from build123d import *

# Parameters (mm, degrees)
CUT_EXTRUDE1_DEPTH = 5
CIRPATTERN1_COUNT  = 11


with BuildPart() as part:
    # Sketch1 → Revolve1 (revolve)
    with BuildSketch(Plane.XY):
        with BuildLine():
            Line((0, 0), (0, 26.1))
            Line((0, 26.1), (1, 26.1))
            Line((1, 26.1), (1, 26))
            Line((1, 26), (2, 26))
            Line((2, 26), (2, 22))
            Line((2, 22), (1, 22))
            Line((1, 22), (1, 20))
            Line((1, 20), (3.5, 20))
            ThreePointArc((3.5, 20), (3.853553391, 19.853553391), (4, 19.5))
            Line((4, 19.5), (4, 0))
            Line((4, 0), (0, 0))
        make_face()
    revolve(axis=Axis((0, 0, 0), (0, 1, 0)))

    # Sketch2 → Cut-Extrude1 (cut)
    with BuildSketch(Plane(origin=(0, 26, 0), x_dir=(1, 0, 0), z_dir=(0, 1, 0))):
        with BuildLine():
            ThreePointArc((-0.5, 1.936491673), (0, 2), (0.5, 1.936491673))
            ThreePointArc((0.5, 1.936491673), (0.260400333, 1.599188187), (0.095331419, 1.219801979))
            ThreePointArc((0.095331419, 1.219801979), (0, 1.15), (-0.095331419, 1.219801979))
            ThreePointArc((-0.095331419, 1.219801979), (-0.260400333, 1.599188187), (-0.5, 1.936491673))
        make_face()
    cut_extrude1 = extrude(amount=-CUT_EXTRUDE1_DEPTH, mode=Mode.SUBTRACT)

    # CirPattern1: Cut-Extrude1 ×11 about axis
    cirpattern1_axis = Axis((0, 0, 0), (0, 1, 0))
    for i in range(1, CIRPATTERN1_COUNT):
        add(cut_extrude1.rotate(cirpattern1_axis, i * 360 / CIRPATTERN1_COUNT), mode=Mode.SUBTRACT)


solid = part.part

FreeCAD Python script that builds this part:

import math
import FreeCAD as App
import Part
import Sketcher
Q = App.Units.Quantity

doc = App.newDocument("Part")
body = doc.addObject("PartDesign::Body", "Body")

# Sketch on XY plane
sketch1 = body.newObject("Sketcher::SketchObject", "Sketch")
sketch1.AttachmentSupport = (doc.getObject("XY_Plane"), [""])
sketch1.MapMode = "FlatFace"
sketch1.addGeometry([
    Part.LineSegment(App.Vector(0, 26.1, 0), App.Vector(0, 0, 0)),  # 0
    Part.LineSegment(App.Vector(0, 0, 0), App.Vector(4, 0, 0)),  # 1
    Part.LineSegment(App.Vector(4, 0, 0), App.Vector(4, 19.5, 0)),  # 2
    Part.ArcOfCircle(Part.Circle(App.Vector(3.5, 19.5, 0), App.Vector(0, 0, 1), 0.5), math.radians(0), math.radians(90)),  # 3
    Part.LineSegment(App.Vector(3.5, 20, 0), App.Vector(1, 20, 0)),  # 4
    Part.LineSegment(App.Vector(1, 20, 0), App.Vector(1, 22, 0)),  # 5
    Part.LineSegment(App.Vector(1, 22, 0), App.Vector(2, 22, 0)),  # 6
    Part.LineSegment(App.Vector(2, 22, 0), App.Vector(2, 26, 0)),  # 7
    Part.LineSegment(App.Vector(2, 26, 0), App.Vector(1, 26, 0)),  # 8
    Part.LineSegment(App.Vector(1, 26, 0), App.Vector(1, 26.1, 0)),  # 9
    Part.LineSegment(App.Vector(1, 26.1, 0), App.Vector(0, 26.1, 0)),  # 10
], False)
sketch1.addConstraint([
    Sketcher.Constraint("Coincident", 0, 2, 1, 1),
    Sketcher.Constraint("Coincident", 1, 2, 2, 1),
    Sketcher.Constraint("Tangent", 2, 2, 3, 1),
    Sketcher.Constraint("Tangent", 3, 2, 4, 1),
    Sketcher.Constraint("Coincident", 4, 2, 5, 1),
    Sketcher.Constraint("Coincident", 5, 2, 6, 1),
    Sketcher.Constraint("Coincident", 6, 2, 7, 1),
    Sketcher.Constraint("Coincident", 7, 2, 8, 1),
    Sketcher.Constraint("Coincident", 8, 2, 9, 1),
    Sketcher.Constraint("Coincident", 9, 2, 10, 1),
    Sketcher.Constraint("Coincident", 10, 2, 0, 1),
    Sketcher.Constraint("Vertical", 0),
    Sketcher.Constraint("Horizontal", 1),
    Sketcher.Constraint("Vertical", 2),
    Sketcher.Constraint("Horizontal", 4),
    Sketcher.Constraint("Vertical", 5),
    Sketcher.Constraint("Horizontal", 6),
    Sketcher.Constraint("Vertical", 7),
    Sketcher.Constraint("Horizontal", 8),
    Sketcher.Constraint("Vertical", 9),
    Sketcher.Constraint("Horizontal", 10),
    Sketcher.Constraint("Coincident", 0, 2, -1, 1),
    Sketcher.Constraint("Vertical", 5, 2, 8, 2),
    Sketcher.Constraint("Equal", 8, 10),
    Sketcher.Constraint("Equal", 1, 7),
    Sketcher.Constraint("Radius", 3, Q("0.5 mm")),
    Sketcher.Constraint("DistanceX", 1, 1, 1, 2, Q("4 mm")),
    Sketcher.Constraint("DistanceX", 6, 1, 6, 2, Q("1 mm")),
    Sketcher.Constraint("DistanceY", 5, 1, 5, 2, Q("2 mm")),
    Sketcher.Constraint("DistanceY", 0, 2, 0, 1, Q("26.1 mm")),
    Sketcher.Constraint("DistanceY", 2, 1, 2, 2, Q("19.5 mm")),
])
revolution = body.newObject("PartDesign::Revolution", "Revolution")
revolution.Profile = sketch1
revolution.ReferenceAxis = (sketch1, ["V_Axis"])
revolution.Angle = 360

# Sketch on XZ plane
sketch2 = body.newObject("Sketcher::SketchObject", "Sketch001")
sketch2.AttachmentSupport = (doc.getObject("XZ_Plane"), [""])
sketch2.MapMode = "FlatFace"
sketch2.AttachmentOffset = App.Placement(App.Vector(0, 0, -26), App.Rotation())
sketch2.addGeometry([
    Part.ArcOfCircle(Part.Circle(App.Vector(0, 0, 0), App.Vector(0, 0, 1), 2), math.radians(-104), math.radians(-76)),
    Part.ArcOfCircle(Part.Circle(App.Vector(-2, -0.62, 0), App.Vector(0, 0, 1), 2), math.radians(-41), math.radians(-18)),
    Part.ArcOfCircle(Part.Circle(App.Vector(0, -1.25, 0), App.Vector(0, 0, 1), 0.1), math.radians(18), math.radians(162)),
    Part.ArcOfCircle(Part.Circle(App.Vector(2, -0.62, 0), App.Vector(0, 0, 1), 2), math.radians(-162), math.radians(-139)),
], False)
sketch2.addConstraint([
    Sketcher.Constraint("Coincident", 0, 1, 1, 1),
    Sketcher.Constraint("Tangent", 1, 2, 2, 2),
    Sketcher.Constraint("Tangent", 2, 1, 3, 1),
    Sketcher.Constraint("Coincident", 3, 2, 0, 2),
    Sketcher.Constraint("Coincident", 0, 3, -1, 1),
    Sketcher.Constraint("Equal", 0, 1),
    Sketcher.Constraint("Equal", 1, 3),
    Sketcher.Constraint("Symmetric", 1, 3, 3, 3, -2),
    Sketcher.Constraint("Radius", 0, Q("2 mm")),
    Sketcher.Constraint("Radius", 2, Q("0.1 mm")),
    Sketcher.Constraint("DistanceX", 0, 1, 3, 2, Q("1 mm")),
    Sketcher.Constraint("DistanceY", 2, 3, -1, 1, Q("1.25 mm")),
])
pocket1 = body.newObject("PartDesign::Pocket", "Pocket")
pocket1.Profile = sketch2
pocket1.Length = 5
pocket1.Reversed = True
doc.recompute()

polarpattern = body.newObject("PartDesign::PolarPattern", "PolarPattern")
polarpattern.Originals = [pocket1]
polarpattern.Axis = (doc.getObject("Y_Axis"), [""])
polarpattern.Angle = 360
polarpattern.Occurrences = 11
body.Tip = polarpattern

doc.recompute()
